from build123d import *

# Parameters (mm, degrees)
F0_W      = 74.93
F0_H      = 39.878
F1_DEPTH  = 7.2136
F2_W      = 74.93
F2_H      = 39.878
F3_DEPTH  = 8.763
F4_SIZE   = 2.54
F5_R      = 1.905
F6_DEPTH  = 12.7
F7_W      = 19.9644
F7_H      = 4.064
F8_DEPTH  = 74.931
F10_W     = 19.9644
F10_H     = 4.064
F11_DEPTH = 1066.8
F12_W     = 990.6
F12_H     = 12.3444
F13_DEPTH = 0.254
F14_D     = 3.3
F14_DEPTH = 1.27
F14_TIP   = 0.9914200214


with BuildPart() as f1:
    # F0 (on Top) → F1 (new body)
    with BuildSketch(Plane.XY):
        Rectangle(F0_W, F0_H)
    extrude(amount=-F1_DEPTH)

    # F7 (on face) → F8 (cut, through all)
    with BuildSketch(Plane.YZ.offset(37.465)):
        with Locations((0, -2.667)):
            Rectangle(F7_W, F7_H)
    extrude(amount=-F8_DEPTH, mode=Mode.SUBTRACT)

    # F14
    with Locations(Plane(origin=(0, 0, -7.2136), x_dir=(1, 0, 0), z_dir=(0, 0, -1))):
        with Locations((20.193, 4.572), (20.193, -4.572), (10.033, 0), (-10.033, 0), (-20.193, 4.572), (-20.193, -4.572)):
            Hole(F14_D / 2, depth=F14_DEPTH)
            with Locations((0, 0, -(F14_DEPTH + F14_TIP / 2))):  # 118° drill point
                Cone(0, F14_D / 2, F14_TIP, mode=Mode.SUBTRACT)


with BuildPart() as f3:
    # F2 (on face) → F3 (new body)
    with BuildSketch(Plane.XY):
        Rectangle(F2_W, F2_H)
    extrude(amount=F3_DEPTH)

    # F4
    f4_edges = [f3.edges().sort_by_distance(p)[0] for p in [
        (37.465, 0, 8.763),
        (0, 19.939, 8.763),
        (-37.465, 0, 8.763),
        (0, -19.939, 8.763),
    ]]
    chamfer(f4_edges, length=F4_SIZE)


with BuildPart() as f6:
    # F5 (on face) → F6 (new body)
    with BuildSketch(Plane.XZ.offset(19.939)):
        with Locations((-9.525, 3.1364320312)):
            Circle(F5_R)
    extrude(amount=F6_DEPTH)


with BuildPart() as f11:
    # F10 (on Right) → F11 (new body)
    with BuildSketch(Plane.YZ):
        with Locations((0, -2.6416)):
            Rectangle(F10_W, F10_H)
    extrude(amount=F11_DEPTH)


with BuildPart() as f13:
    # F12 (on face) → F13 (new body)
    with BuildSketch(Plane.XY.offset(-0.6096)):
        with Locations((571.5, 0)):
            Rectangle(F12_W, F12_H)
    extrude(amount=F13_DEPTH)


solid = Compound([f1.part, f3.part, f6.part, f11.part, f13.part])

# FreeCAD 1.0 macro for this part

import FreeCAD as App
import Part
import Sketcher
from FreeCAD import Vector
Q = App.Units.Quantity


def edges_at(feature, points):
    """Names of the edges that pass closest to the given points."""
    edges = feature.Shape.Edges
    near = lambda p: min(range(len(edges)), key=lambda i: edges[i].distToShape(Part.Vertex(*p))[0])
    return sorted({f"Edge{near(p) + 1}" for p in points})


def add_polygon(sketch, points):
    """Adds a closed chain of lines whose ends are joined by coincident constraints."""
    first, n = sketch.GeometryCount, len(points)
    for a, b in zip(points, points[1:] + points[:1]):
        sketch.addGeometry(Part.LineSegment(App.Vector(*a, 0), App.Vector(*b, 0)), False)
    for i in range(n):
        sketch.addConstraint(Sketcher.Constraint("Coincident", first + i, 2, first + (i + 1) % n, 1))

doc = App.newDocument("Part")
body = doc.addObject("PartDesign::Body", "Body")

sketch1 = body.newObject("Sketcher::SketchObject", "Sketch")
sketch1.AttachmentSupport = (doc.getObject("XY_Plane"), [""])
sketch1.MapMode = "FlatFace"
add_polygon(sketch1, [(-37.465, 19.939), (-37.465, -19.939), (37.465, -19.939), (37.465, 19.939)])
sketch1.addConstraint([
    Sketcher.Constraint("Vertical", 0),
    Sketcher.Constraint("Horizontal", 1),
    Sketcher.Constraint("Vertical", 2),
    Sketcher.Constraint("Horizontal", 3),
    Sketcher.Constraint("Symmetric", 0, 2, 2, 2, -1, 1),
    Sketcher.Constraint("DistanceX", 1, 1, 1, 2, Q("2.95 in")),
    Sketcher.Constraint("DistanceY", 0, 2, 0, 1, Q("1.57 in")),
])
pad1 = body.newObject("PartDesign::Pad", "Pad")
pad1.Profile = sketch1
pad1.Length = Q("0.284 in")
pad1.Reversed = True

sketch2 = body.newObject("Sketcher::SketchObject", "Sketch001")
sketch2.AttachmentSupport = (doc.getObject("YZ_Plane"), [""])
sketch2.MapMode = "FlatFace"
sketch2.AttachmentOffset = App.Placement(Vector(0, 0, 1.475 * 25.4), App.Rotation())
add_polygon(sketch2, [(-9.9822, -0.635), (-9.9822, -4.699), (9.9822, -4.699), (9.9822, -0.635)])
sketch2.addConstraint([
    Sketcher.Constraint("Vertical", 0),
    Sketcher.Constraint("Horizontal", 1),
    Sketcher.Constraint("Vertical", 2),
    Sketcher.Constraint("Horizontal", 3),
    Sketcher.Constraint("DistanceY", 0, 2, 0, 1, Q("0.16 in")),
    Sketcher.Constraint("DistanceX", 1, 1, 1, 2, Q("0.786 in")),
    Sketcher.Constraint("DistanceX", 0, 2, -1, 1, Q("0.393 in")),
    Sketcher.Constraint("DistanceY", 0, 2, -1, 1, Q("0.185 in")),
])
pocket1 = body.newObject("PartDesign::Pocket", "Pocket")
pocket1.Profile = sketch2
pocket1.Type = "ThroughAll"

sketch3 = body.newObject("Sketcher::SketchObject", "Sketch002")
sketch3.AttachmentSupport = (doc.getObject("XY_Plane"), [""])
sketch3.MapMode = "FlatFace"
sketch3.AttachmentOffset = App.Placement(Vector(0, 0, -0.284 * 25.4), App.Rotation())
sketch3.addGeometry([
    Part.Circle(Vector(20.193, -4.572, 0), Vector(0, 0, 1), 1.65),
    Part.Circle(Vector(20.193, 4.572, 0), Vector(0, 0, 1), 1.65),
    Part.Circle(Vector(10.033, 0, 0), Vector(0, 0, 1), 1.65),
    Part.Circle(Vector(-10.033, 0, 0), Vector(0, 0, 1), 1.65),
    Part.Circle(Vector(-20.193, -4.572, 0), Vector(0, 0, 1), 1.65),
    Part.Circle(Vector(-20.193, 4.572, 0), Vector(0, 0, 1), 1.65),
], False)
sketch3.addConstraint([
    Sketcher.Constraint("Equal", 0, 1),
    Sketcher.Constraint("Equal", 1, 2),
    Sketcher.Constraint("Equal", 2, 3),
    Sketcher.Constraint("Equal", 3, 4),
    Sketcher.Constraint("Equal", 4, 5),
    Sketcher.Constraint("Symmetric", 2, 3, 3, 3, -1, 1),
    Sketcher.Constraint("Symmetric", 1, 3, 4, 3, -1, 1),
    Sketcher.Constraint("Symmetric", 0, 3, 5, 3, -1, 1),
    Sketcher.Constraint("Symmetric", 0, 3, 4, 3, -2),
    Sketcher.Constraint("PointOnObject", 2, 3, -1),
    Sketcher.Constraint("DistanceX", 2, 3, 0, 3, Q("0.4 in")),
    Sketcher.Constraint("Diameter", 0, 3.3),
    Sketcher.Constraint("DistanceY", 0, 3, -1, 1, Q("0.18 in")),
    Sketcher.Constraint("DistanceX", 3, 3, 2, 3, Q("0.79 in")),
])
doc.recompute()
hole = body.newObject("PartDesign::Hole", "Hole")
hole.Profile = sketch3
hole.ThreadType = "None"
hole.Diameter = 3.3
hole.DepthType = "Dimension"
hole.Depth = Q("0.05 in")
hole.DrillPoint = "Angled"
hole.DrillPointAngle = 118
hole.Reversed = True
body2 = doc.addObject("PartDesign::Body", "Body001")

sketch4 = body2.newObject("Sketcher::SketchObject", "Sketch003")
sketch4.AttachmentSupport = (doc.getObject("XY_Plane001"), [""])
sketch4.MapMode = "FlatFace"
add_polygon(sketch4, [(-37.465, 19.939), (-37.465, -19.939), (37.465, -19.939), (37.465, 19.939)])
sketch4.addConstraint([
    Sketcher.Constraint("Vertical", 0),
    Sketcher.Constraint("Horizontal", 1),
    Sketcher.Constraint("Vertical", 2),
    Sketcher.Constraint("Horizontal", 3),
    Sketcher.Constraint("Symmetric", 0, 2, 2, 2, -1, 1),
    Sketcher.Constraint("DistanceX", 1, 1, 1, 2, Q("2.95 in")),
    Sketcher.Constraint("DistanceY", 0, 2, 0, 1, Q("1.57 in")),
])
pad2 = body2.newObject("PartDesign::Pad", "Pad001")
pad2.Profile = sketch4
pad2.Length = Q("0.345 in")
doc.recompute()

chamfer = body2.newObject("PartDesign::Chamfer", "Chamfer")
chamfer.Base = (pad2, edges_at(pad2, [
    (37.465, 0, 8.763),
    (0, 19.939, 8.763),
    (-37.465, 0, 8.763),
    (0, -19.939, 8.763),
]))
chamfer.Size = Q("0.1 in")
body3 = doc.addObject("PartDesign::Body", "Body002")

sketch5 = body3.newObject("Sketcher::SketchObject", "Sketch004")
sketch5.AttachmentSupport = (doc.getObject("XZ_Plane002"), [""])
sketch5.MapMode = "FlatFace"
sketch5.AttachmentOffset = App.Placement(Vector(0, 0, 0.785 * 25.4), App.Rotation())
sketch5.addGeometry(Part.Circle(Vector(-9.525, 3.136432, 0), Vector(0, 0, 1), 1.905), False)
sketch5.addConstraint([
    Sketcher.Constraint("Diameter", 0, Q("0.15 in")),
    Sketcher.Constraint("DistanceX", 0, 3, -1, 1, Q("0.375 in")),
    Sketcher.Constraint("DistanceY", -1, 1, 0, 3, 3.136432),
])
pad3 = body3.newObject("PartDesign::Pad", "Pad002")
pad3.Profile = sketch5
pad3.Length = Q("0.5 in")
body4 = doc.addObject("PartDesign::Body", "Body003")

sketch6 = body4.newObject("Sketcher::SketchObject", "Sketch005")
sketch6.AttachmentSupport = (doc.getObject("YZ_Plane003"), [""])
sketch6.MapMode = "FlatFace"
add_polygon(sketch6, [(-9.9822, -0.6096), (-9.9822, -4.6736), (9.9822, -4.6736), (9.9822, -0.6096)])
sketch6.addConstraint([
    Sketcher.Constraint("Vertical", 0),
    Sketcher.Constraint("Horizontal", 1),
    Sketcher.Constraint("Vertical", 2),
    Sketcher.Constraint("Horizontal", 3),
    Sketcher.Constraint("DistanceY", 0, 2, 0, 1, Q("0.16 in")),
    Sketcher.Constraint("DistanceX", 1, 1, 1, 2, Q("0.786 in")),
    Sketcher.Constraint("DistanceX", 0, 2, -1, 1, Q("0.393 in")),
    Sketcher.Constraint("DistanceY", 0, 2, -1, 1, Q("0.184 in")),
])
pad4 = body4.newObject("PartDesign::Pad", "Pad003")
pad4.Profile = sketch6
pad4.Length = Q("42 in")
body5 = doc.addObject("PartDesign::Body", "Body004")

sketch7 = body5.newObject("Sketcher::SketchObject", "Sketch006")
sketch7.AttachmentSupport = (doc.getObject("XY_Plane004"), [""])
sketch7.MapMode = "FlatFace"
sketch7.AttachmentOffset = App.Placement(Vector(0, 0, -0.024 * 25.4), App.Rotation())
add_polygon(sketch7, [(76.2, 6.1722), (76.2, -6.1722), (1066.8, -6.1722), (1066.8, 6.1722)])
sketch7.addConstraint([
    Sketcher.Constraint("Vertical", 0),
    Sketcher.Constraint("Horizontal", 1),
    Sketcher.Constraint("Vertical", 2),
    Sketcher.Constraint("Horizontal", 3),
    Sketcher.Constraint("DistanceX", 1, 1, 1, 2, Q("39 in")),
    Sketcher.Constraint("DistanceX", -1, 1, 0, 2, Q("3 in")),
    Sketcher.Constraint("DistanceY", 0, 2, 0, 1, Q("0.486 in")),
    Sketcher.Constraint("DistanceY", 0, 2, -1, 1, Q("0.243 in")),
])
pad5 = body5.newObject("PartDesign::Pad", "Pad004")
pad5.Profile = sketch7
pad5.Length = Q("0.01 in")

doc.recompute()
